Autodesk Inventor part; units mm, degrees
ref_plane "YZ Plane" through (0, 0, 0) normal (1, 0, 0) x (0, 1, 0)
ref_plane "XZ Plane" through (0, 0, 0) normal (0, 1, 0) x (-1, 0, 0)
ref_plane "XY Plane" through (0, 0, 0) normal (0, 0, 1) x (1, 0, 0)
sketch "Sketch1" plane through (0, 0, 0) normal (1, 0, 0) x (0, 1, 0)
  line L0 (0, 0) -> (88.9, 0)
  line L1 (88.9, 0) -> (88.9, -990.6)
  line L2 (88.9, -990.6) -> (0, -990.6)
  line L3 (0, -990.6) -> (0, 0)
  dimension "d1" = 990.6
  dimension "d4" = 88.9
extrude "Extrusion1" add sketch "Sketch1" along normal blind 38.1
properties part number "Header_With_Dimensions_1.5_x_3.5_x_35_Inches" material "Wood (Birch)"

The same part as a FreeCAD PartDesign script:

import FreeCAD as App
import Part
import Sketcher
Q = App.Units.Quantity

doc = App.newDocument("Part")
body = doc.addObject("PartDesign::Body", "Body")

# Sketch on YZ plane
sketch1 = body.newObject("Sketcher::SketchObject", "Sketch")
sketch1.AttachmentSupport = (doc.getObject("YZ_Plane"), [""])
sketch1.MapMode = "FlatFace"
sketch1.addGeometry([
    Part.LineSegment(App.Vector(89, 0, 0), App.Vector(0, 0, 0)),
    Part.LineSegment(App.Vector(0, 0, 0), App.Vector(0, -991, 0)),
    Part.LineSegment(App.Vector(0, -991, 0), App.Vector(89, -991, 0)),
    Part.LineSegment(App.Vector(89, -991, 0), App.Vector(89, 0, 0)),
], False)
sketch1.addConstraint([
    Sketcher.Constraint("Coincident", 0, 2, 1, 1),
    Sketcher.Constraint("Coincident", 1, 2, 2, 1),
    Sketcher.Constraint("Coincident", 2, 2, 3, 1),
    Sketcher.Constraint("Coincident", 3, 2, 0, 1),
    Sketcher.Constraint("Horizontal", 0),
    Sketcher.Constraint("Vertical", 1),
    Sketcher.Constraint("Horizontal", 2),
    Sketcher.Constraint("Vertical", 3),
    Sketcher.Constraint("Coincident", 0, 2, -1, 1),
    Sketcher.Constraint("DistanceY", 1, 2, 1, 1, Q("39 in")),
    Sketcher.Constraint("DistanceX", 0, 2, 0, 1, Q("3.5 in")),
])
pad1 = body.newObject("PartDesign::Pad", "Pad")
pad1.Profile = sketch1
pad1.Length = Q("1.5 in")

doc.recompute()
